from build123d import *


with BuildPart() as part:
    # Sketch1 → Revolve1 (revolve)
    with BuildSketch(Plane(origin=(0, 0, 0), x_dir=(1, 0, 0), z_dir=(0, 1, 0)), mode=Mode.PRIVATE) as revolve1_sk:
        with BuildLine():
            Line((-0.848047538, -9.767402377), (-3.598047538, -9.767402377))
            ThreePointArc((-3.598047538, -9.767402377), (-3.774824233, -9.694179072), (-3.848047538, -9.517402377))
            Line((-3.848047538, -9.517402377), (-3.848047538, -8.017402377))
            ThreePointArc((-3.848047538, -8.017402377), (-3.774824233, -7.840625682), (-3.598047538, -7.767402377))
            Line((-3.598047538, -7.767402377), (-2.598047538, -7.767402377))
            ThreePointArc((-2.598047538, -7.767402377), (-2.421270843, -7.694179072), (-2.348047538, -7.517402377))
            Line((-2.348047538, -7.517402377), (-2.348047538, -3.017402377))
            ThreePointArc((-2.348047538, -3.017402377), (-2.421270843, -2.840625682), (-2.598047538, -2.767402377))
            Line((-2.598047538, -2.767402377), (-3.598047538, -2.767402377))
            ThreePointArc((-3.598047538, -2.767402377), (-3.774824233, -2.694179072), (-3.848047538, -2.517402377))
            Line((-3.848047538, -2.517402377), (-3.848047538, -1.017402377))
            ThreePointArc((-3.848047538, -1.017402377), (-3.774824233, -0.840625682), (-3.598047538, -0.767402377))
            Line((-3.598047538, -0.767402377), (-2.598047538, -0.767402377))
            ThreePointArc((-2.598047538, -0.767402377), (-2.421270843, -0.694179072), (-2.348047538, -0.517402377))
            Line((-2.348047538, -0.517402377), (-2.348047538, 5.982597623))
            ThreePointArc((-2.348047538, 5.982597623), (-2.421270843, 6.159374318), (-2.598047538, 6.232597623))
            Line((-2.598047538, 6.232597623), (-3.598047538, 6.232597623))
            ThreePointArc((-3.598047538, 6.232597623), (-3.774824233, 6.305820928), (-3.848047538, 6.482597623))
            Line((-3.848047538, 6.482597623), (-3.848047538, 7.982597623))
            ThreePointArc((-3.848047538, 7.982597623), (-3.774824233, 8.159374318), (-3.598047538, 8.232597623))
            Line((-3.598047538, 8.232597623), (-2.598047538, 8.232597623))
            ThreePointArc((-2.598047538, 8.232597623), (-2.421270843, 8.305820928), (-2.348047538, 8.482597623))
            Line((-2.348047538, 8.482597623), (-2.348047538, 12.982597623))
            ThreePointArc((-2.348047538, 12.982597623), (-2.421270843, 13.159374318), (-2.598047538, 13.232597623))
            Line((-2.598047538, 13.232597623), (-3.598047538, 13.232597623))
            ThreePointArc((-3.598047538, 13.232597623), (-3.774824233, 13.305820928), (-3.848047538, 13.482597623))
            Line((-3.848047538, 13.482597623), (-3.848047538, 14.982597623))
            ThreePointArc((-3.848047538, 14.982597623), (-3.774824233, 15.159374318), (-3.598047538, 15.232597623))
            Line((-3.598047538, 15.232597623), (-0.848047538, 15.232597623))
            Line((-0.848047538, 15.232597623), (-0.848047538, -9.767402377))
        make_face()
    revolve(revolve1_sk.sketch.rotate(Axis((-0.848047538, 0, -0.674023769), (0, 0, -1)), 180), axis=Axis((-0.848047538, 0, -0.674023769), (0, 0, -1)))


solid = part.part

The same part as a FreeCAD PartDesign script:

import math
import FreeCAD as App
import Part
import Sketcher
from FreeCAD import Vector

doc = App.newDocument("Part")
body = doc.addObject("PartDesign::Body", "Body")

sketch1 = doc.addObject("Sketcher::SketchObject", "Sketch")
body.addObject(sketch1)
sketch1.AttachmentSupport = (doc.XZ_Plane, [""])
sketch1.MapMode = "FlatFace"
sketch1.addGeometry(Part.LineSegment(Vector(-3.6, 9.77, 0), Vector(-0.85, 9.77, 0)), False)
sketch1.addGeometry(Part.LineSegment(Vector(-0.85, 9.77, 0), Vector(-0.85, -15.23, 0)), False)
sketch1.addGeometry(Part.LineSegment(Vector(-0.85, -15.23, 0), Vector(-3.6, -15.23, 0)), False)
sketch1.addGeometry(Part.ArcOfCircle(Part.Circle(Vector(-3.6, -14.98, 0), Vector(0, 0, 1), 0.25), math.radians(-180), math.radians(-90)), False)
sketch1.addGeometry(Part.LineSegment(Vector(-3.85, -14.98, 0), Vector(-3.85, -13.48, 0)), False)
sketch1.addGeometry(Part.ArcOfCircle(Part.Circle(Vector(-3.6, -13.48, 0), Vector(0, 0, 1), 0.25), math.radians(90), math.radians(180)), False)
sketch1.addGeometry(Part.LineSegment(Vector(-3.6, -13.23, 0), Vector(-2.6, -13.23, 0)), False)
sketch1.addGeometry(Part.ArcOfCircle(Part.Circle(Vector(-2.6, -12.98, 0), Vector(0, 0, 1), 0.25), math.radians(-90), math.radians(0)), False)
sketch1.addGeometry(Part.LineSegment(Vector(-2.35, -12.98, 0), Vector(-2.35, -8.48, 0)), False)
sketch1.addGeometry(Part.ArcOfCircle(Part.Circle(Vector(-2.6, -8.48, 0), Vector(0, 0, 1), 0.25), math.radians(0), math.radians(90)), False)
sketch1.addGeometry(Part.LineSegment(Vector(-2.6, -8.23, 0), Vector(-3.6, -8.23, 0)), False)
sketch1.addGeometry(Part.ArcOfCircle(Part.Circle(Vector(-3.6, -7.98, 0), Vector(0, 0, 1), 0.25), math.radians(-180), math.radians(-90)), False)
sketch1.addGeometry(Part.LineSegment(Vector(-3.85, -7.98, 0), Vector(-3.85, -6.48, 0)), False)
sketch1.addGeometry(Part.ArcOfCircle(Part.Circle(Vector(-3.6, -6.48, 0), Vector(0, 0, 1), 0.25), math.radians(90), math.radians(180)), False)
sketch1.addGeometry(Part.LineSegment(Vector(-3.6, -6.23, 0), Vector(-2.6, -6.23, 0)), False)
sketch1.addGeometry(Part.ArcOfCircle(Part.Circle(Vector(-2.6, -5.98, 0), Vector(0, 0, 1), 0.25), math.radians(-90), math.radians(0)), False)
sketch1.addGeometry(Part.LineSegment(Vector(-2.35, -5.98, 0), Vector(-2.35, 0.52, 0)), False)
sketch1.addGeometry(Part.ArcOfCircle(Part.Circle(Vector(-2.6, 0.52, 0), Vector(0, 0, 1), 0.25), math.radians(0), math.radians(90)), False)
sketch1.addGeometry(Part.LineSegment(Vector(-2.6, 0.77, 0), Vector(-3.6, 0.77, 0)), False)
sketch1.addGeometry(Part.ArcOfCircle(Part.Circle(Vector(-3.6, 1.02, 0), Vector(0, 0, 1), 0.25), math.radians(-180), math.radians(-90)), False)
sketch1.addGeometry(Part.LineSegment(Vector(-3.85, 1.02, 0), Vector(-3.85, 2.52, 0)), False)
sketch1.addGeometry(Part.ArcOfCircle(Part.Circle(Vector(-3.6, 2.52, 0), Vector(0, 0, 1), 0.25), math.radians(90), math.radians(180)), False)
sketch1.addGeometry(Part.LineSegment(Vector(-3.6, 2.77, 0), Vector(-2.6, 2.77, 0)), False)
sketch1.addGeometry(Part.ArcOfCircle(Part.Circle(Vector(-2.6, 3.02, 0), Vector(0, 0, 1), 0.25), math.radians(-90), math.radians(0)), False)
sketch1.addGeometry(Part.LineSegment(Vector(-2.35, 3.02, 0), Vector(-2.35, 7.52, 0)), False)
sketch1.addGeometry(Part.ArcOfCircle(Part.Circle(Vector(-2.6, 7.52, 0), Vector(0, 0, 1), 0.25), math.radians(0), math.radians(90)), False)
sketch1.addGeometry(Part.LineSegment(Vector(-2.6, 7.77, 0), Vector(-3.6, 7.77, 0)), False)
sketch1.addGeometry(Part.ArcOfCircle(Part.Circle(Vector(-3.6, 8.02, 0), Vector(0, 0, 1), 0.25), math.radians(-180), math.radians(-90)), False)
sketch1.addGeometry(Part.LineSegment(Vector(-3.85, 8.02, 0), Vector(-3.85, 9.52, 0)), False)
sketch1.addGeometry(Part.ArcOfCircle(Part.Circle(Vector(-3.6, 9.52, 0), Vector(0, 0, 1), 0.25), math.radians(90), math.radians(180)), False)
sketch1.addGeometry(Part.LineSegment(Vector(-0.85, 9.77, 0), Vector(-0.85, -15.23, 0)), True)
sketch1.addConstraint(Sketcher.Constraint("Coincident", 0, 2, 1, 1))
sketch1.addConstraint(Sketcher.Constraint("Coincident", 1, 2, 2, 1))
sketch1.addConstraint(Sketcher.Constraint("Tangent", 2, 2, 3, 2))
sketch1.addConstraint(Sketcher.Constraint("Tangent", 3, 1, 4, 1))
sketch1.addConstraint(Sketcher.Constraint("Tangent", 4, 2, 5, 2))
sketch1.addConstraint(Sketcher.Constraint("Tangent", 5, 1, 6, 1))
sketch1.addConstraint(Sketcher.Constraint("Tangent", 6, 2, 7, 1))
sketch1.addConstraint(Sketcher.Constraint("Tangent", 7, 2, 8, 1))
sketch1.addConstraint(Sketcher.Constraint("Tangent", 8, 2, 9, 1))
sketch1.addConstraint(Sketcher.Constraint("Tangent", 9, 2, 10, 1))
sketch1.addConstraint(Sketcher.Constraint("Tangent", 10, 2, 11, 2))
sketch1.addConstraint(Sketcher.Constraint("Tangent", 11, 1, 12, 1))
sketch1.addConstraint(Sketcher.Constraint("Tangent", 12, 2, 13, 2))
sketch1.addConstraint(Sketcher.Constraint("Tangent", 13, 1, 14, 1))
sketch1.addConstraint(Sketcher.Constraint("Tangent", 14, 2, 15, 1))
sketch1.addConstraint(Sketcher.Constraint("Tangent", 15, 2, 16, 1))
sketch1.addConstraint(Sketcher.Constraint("Tangent", 16, 2, 17, 1))
sketch1.addConstraint(Sketcher.Constraint("Tangent", 17, 2, 18, 1))
sketch1.addConstraint(Sketcher.Constraint("Tangent", 18, 2, 19, 2))
sketch1.addConstraint(Sketcher.Constraint("Tangent", 19, 1, 20, 1))
sketch1.addConstraint(Sketcher.Constraint("Tangent", 20, 2, 21, 2))
sketch1.addConstraint(Sketcher.Constraint("Tangent", 21, 1, 22, 1))
sketch1.addConstraint(Sketcher.Constraint("Tangent", 22, 2, 23, 1))
sketch1.addConstraint(Sketcher.Constraint("Tangent", 23, 2, 24, 1))
sketch1.addConstraint(Sketcher.Constraint("Tangent", 24, 2, 25, 1))
sketch1.addConstraint(Sketcher.Constraint("Tangent", 25, 2, 26, 1))
sketch1.addConstraint(Sketcher.Constraint("Tangent", 26, 2, 27, 2))
sketch1.addConstraint(Sketcher.Constraint("Tangent", 27, 1, 28, 1))
sketch1.addConstraint(Sketcher.Constraint("Tangent", 28, 2, 29, 2))
sketch1.addConstraint(Sketcher.Constraint("Tangent", 29, 1, 0, 1))
sketch1.addConstraint(Sketcher.Constraint("Horizontal", 0))
sketch1.addConstraint(Sketcher.Constraint("Vertical", 1))
sketch1.addConstraint(Sketcher.Constraint("Horizontal", 2))
sketch1.addConstraint(Sketcher.Constraint("Vertical", 4))
sketch1.addConstraint(Sketcher.Constraint("Horizontal", 6))
sketch1.addConstraint(Sketcher.Constraint("Vertical", 8))
sketch1.addConstraint(Sketcher.Constraint("Horizontal", 10))
sketch1.addConstraint(Sketcher.Constraint("Vertical", 12))
sketch1.addConstraint(Sketcher.Constraint("Horizontal", 14))
sketch1.addConstraint(Sketcher.Constraint("Vertical", 16))
sketch1.addConstraint(Sketcher.Constraint("Horizontal", 18))
sketch1.addConstraint(Sketcher.Constraint("Vertical", 20))
sketch1.addConstraint(Sketcher.Constraint("Horizontal", 22))
sketch1.addConstraint(Sketcher.Constraint("Vertical", 24))
sketch1.addConstraint(Sketcher.Constraint("Horizontal", 26))
sketch1.addConstraint(Sketcher.Constraint("Vertical", 28))
sketch1.addConstraint(Sketcher.Constraint("Vertical", 30))
sketch1.addConstraint(Sketcher.Constraint("Coincident", 30, 1, 0, 2))
sketch1.addConstraint(Sketcher.Constraint("Equal", 3, 5))
sketch1.addConstraint(Sketcher.Constraint("Equal", 5, 7))
sketch1.addConstraint(Sketcher.Constraint("Equal", 7, 9))
sketch1.addConstraint(Sketcher.Constraint("Equal", 9, 11))
sketch1.addConstraint(Sketcher.Constraint("Equal", 11, 13))
sketch1.addConstraint(Sketcher.Constraint("Equal", 13, 15))
sketch1.addConstraint(Sketcher.Constraint("Equal", 15, 17))
sketch1.addConstraint(Sketcher.Constraint("Equal", 17, 19))
sketch1.addConstraint(Sketcher.Constraint("Equal", 19, 21))
sketch1.addConstraint(Sketcher.Constraint("Equal", 21, 23))
sketch1.addConstraint(Sketcher.Constraint("Equal", 23, 25))
sketch1.addConstraint(Sketcher.Constraint("Equal", 25, 27))
sketch1.addConstraint(Sketcher.Constraint("Equal", 27, 29))
sketch1.addConstraint(Sketcher.Constraint("Horizontal", 2, 2, 30, 2))
sketch1.addConstraint(Sketcher.Constraint("Vertical", 5, 3, 11, 3))
sketch1.addConstraint(Sketcher.Constraint("Vertical", 9, 3, 15, 3))
sketch1.addConstraint(Sketcher.Constraint("Vertical", 13, 3, 19, 3))
sketch1.addConstraint(Sketcher.Constraint("Vertical", 17, 3, 23, 3))
sketch1.addConstraint(Sketcher.Constraint("Vertical", 21, 3, 27, 3))
sketch1.addConstraint(Sketcher.Constraint("Equal", 4, 12))
sketch1.addConstraint(Sketcher.Constraint("Equal", 12, 20))
sketch1.addConstraint(Sketcher.Constraint("Equal", 8, 24))
sketch1.addConstraint(Sketcher.Constraint("Equal", 20, 28))
sketch1.addConstraint(Sketcher.Constraint("DistanceX", 6, 1, 6, 2, 1.0))
sketch1.addConstraint(Sketcher.Constraint("DistanceY", 1, 2, 1, 1, 25.0))
sketch1.addConstraint(Sketcher.Constraint("Radius", 3, 0.25))
sketch1.addConstraint(Sketcher.Constraint("DistanceY", 4, 1, 4, 2, 1.5))
sketch1.addConstraint(Sketcher.Constraint("DistanceY", 8, 1, 8, 2, 4.5))
sketch1.addConstraint(Sketcher.Constraint("DistanceX", 3, 1, 1, 2, 3.0))
sketch1.addConstraint(Sketcher.Constraint("DistanceX", 3, 3, -1, 1, 3.598048))
sketch1.addConstraint(Sketcher.Constraint("DistanceY", 3, 3, -1, 1, 14.982598))
revolution = doc.addObject("PartDesign::Revolution", "Revolution")
body.addObject(revolution)
revolution.Profile = sketch1
revolution.ReferenceAxis = (sketch1, ["Axis0"])
revolution.Angle = 360

doc.recompute()
